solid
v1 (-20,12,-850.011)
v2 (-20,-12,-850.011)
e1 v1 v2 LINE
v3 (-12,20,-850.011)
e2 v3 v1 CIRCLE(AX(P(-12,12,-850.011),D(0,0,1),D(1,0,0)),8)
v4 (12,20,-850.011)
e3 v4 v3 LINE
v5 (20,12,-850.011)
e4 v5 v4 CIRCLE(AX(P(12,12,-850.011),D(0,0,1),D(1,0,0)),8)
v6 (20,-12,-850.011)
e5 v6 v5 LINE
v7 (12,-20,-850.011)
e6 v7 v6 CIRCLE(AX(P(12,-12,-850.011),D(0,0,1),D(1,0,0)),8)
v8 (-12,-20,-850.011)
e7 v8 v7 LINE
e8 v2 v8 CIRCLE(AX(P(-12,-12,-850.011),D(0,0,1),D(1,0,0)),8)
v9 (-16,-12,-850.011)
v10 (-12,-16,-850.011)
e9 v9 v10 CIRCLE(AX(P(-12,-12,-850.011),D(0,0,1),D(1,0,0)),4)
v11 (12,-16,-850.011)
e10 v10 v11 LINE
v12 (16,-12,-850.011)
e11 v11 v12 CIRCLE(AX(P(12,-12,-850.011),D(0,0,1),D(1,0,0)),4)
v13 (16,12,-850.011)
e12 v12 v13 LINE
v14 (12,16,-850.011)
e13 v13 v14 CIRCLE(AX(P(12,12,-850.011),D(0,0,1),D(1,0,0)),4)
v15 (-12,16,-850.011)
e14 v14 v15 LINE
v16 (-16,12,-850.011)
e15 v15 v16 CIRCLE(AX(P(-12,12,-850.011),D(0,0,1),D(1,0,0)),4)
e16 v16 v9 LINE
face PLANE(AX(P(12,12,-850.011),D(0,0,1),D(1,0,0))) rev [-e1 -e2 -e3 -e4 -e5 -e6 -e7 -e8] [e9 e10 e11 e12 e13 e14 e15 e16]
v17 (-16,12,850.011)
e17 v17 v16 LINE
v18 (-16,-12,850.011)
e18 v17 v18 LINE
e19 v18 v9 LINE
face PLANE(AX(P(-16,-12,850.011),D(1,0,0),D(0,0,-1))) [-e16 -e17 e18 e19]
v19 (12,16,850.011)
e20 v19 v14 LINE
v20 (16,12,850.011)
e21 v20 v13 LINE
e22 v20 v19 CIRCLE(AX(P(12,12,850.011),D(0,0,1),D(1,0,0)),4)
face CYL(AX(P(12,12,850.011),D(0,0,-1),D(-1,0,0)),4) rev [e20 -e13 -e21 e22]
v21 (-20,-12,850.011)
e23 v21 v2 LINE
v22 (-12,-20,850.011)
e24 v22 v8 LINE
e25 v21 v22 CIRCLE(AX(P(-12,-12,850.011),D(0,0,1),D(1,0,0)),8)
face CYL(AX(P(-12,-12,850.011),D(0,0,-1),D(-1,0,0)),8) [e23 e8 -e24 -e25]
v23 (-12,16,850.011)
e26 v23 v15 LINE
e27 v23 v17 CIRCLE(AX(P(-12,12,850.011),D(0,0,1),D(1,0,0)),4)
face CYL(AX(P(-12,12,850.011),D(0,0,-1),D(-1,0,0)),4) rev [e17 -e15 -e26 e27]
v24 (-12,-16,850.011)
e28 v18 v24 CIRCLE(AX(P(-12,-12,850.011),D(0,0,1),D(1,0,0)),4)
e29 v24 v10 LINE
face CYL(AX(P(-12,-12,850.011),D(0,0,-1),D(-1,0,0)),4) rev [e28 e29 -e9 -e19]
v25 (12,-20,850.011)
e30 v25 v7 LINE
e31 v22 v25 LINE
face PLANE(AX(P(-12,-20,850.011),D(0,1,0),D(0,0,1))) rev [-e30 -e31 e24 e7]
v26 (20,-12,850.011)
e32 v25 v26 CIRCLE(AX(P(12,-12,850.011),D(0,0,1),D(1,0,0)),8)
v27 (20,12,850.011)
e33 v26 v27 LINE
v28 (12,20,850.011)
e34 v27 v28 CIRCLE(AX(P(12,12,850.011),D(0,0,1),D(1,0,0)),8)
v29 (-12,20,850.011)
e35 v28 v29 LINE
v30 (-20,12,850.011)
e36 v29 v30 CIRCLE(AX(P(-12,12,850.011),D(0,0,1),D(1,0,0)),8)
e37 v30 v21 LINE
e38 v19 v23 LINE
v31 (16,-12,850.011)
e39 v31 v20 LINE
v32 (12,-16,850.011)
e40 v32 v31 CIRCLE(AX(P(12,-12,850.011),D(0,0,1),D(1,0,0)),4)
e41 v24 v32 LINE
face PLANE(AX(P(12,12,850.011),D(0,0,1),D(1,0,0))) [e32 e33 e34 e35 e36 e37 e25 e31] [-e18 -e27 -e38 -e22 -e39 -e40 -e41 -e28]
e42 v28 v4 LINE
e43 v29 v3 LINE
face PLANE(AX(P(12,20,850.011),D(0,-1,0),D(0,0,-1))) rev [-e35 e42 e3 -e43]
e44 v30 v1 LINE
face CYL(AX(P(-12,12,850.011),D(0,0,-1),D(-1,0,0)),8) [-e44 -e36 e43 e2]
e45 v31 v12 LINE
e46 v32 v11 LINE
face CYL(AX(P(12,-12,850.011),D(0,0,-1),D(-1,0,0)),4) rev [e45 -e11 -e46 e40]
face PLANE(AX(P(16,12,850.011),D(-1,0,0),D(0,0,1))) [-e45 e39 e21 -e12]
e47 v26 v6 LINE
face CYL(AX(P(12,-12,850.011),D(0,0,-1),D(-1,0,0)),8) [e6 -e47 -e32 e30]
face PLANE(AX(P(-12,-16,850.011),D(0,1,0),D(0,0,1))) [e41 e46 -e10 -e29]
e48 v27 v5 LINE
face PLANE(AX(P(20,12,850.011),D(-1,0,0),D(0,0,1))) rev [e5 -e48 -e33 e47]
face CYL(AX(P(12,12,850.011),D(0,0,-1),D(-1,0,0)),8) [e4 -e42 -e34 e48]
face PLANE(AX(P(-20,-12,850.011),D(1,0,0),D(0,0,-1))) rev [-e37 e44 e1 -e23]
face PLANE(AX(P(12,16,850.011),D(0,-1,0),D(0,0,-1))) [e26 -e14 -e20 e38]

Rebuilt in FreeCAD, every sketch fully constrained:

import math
import FreeCAD as App
import Part
import Sketcher

V = App.Vector
Q = App.Units.Quantity

doc = App.newDocument("Part")
body = doc.addObject("PartDesign::Body", "Body")

# Sketch on XY plane
sketch1 = body.newObject("Sketcher::SketchObject", "Sketch")
sketch1.AttachmentSupport = (doc.getObject("XY_Plane"), [""])
sketch1.MapMode = "FlatFace"
sketch1.AttachmentOffset = App.Placement(V(0, 0, -850.011), App.Rotation())
sketch1.addGeometry(Part.LineSegment(V(-12, -20, 0), V(12, -20, 0)), False)
sketch1.addGeometry(Part.ArcOfCircle(Part.Circle(V(12, -12, 0), V(0, 0, 1), 8), math.radians(-90), math.radians(0)), False)
sketch1.addGeometry(Part.LineSegment(V(20, -12, 0), V(20, 12, 0)), False)
sketch1.addGeometry(Part.ArcOfCircle(Part.Circle(V(12, 12, 0), V(0, 0, 1), 8), math.radians(0), math.radians(90)), False)
sketch1.addGeometry(Part.LineSegment(V(12, 20, 0), V(-12, 20, 0)), False)
sketch1.addGeometry(Part.ArcOfCircle(Part.Circle(V(-12, 12, 0), V(0, 0, 1), 8), math.radians(90), math.radians(180)), False)
sketch1.addGeometry(Part.LineSegment(V(-20, 12, 0), V(-20, -12, 0)), False)
sketch1.addGeometry(Part.ArcOfCircle(Part.Circle(V(-12, -12, 0), V(0, 0, 1), 8), math.radians(-180), math.radians(-90)), False)
sketch1.addGeometry(Part.LineSegment(V(12, -16, 0), V(-12, -16, 0)), False)
sketch1.addGeometry(Part.ArcOfCircle(Part.Circle(V(-12, -12, 0), V(0, 0, 1), 4), math.radians(180), math.radians(270)), False)
sketch1.addGeometry(Part.LineSegment(V(-16, -12, 0), V(-16, 12, 0)), False)
sketch1.addGeometry(Part.ArcOfCircle(Part.Circle(V(-12, 12, 0), V(0, 0, 1), 4), math.radians(90), math.radians(180)), False)
sketch1.addGeometry(Part.LineSegment(V(-12, 16, 0), V(12, 16, 0)), False)
sketch1.addGeometry(Part.ArcOfCircle(Part.Circle(V(12, 12, 0), V(0, 0, 1), 4), math.radians(0), math.radians(90)), False)
sketch1.addGeometry(Part.LineSegment(V(16, 12, 0), V(16, -12, 0)), False)
sketch1.addGeometry(Part.ArcOfCircle(Part.Circle(V(12, -12, 0), V(0, 0, 1), 4), math.radians(-90), math.radians(0)), False)
sketch1.addConstraint(Sketcher.Constraint("Tangent", 0, 2, 1, 1))
sketch1.addConstraint(Sketcher.Constraint("Tangent", 1, 2, 2, 1))
sketch1.addConstraint(Sketcher.Constraint("Tangent", 2, 2, 3, 1))
sketch1.addConstraint(Sketcher.Constraint("Tangent", 3, 2, 4, 1))
sketch1.addConstraint(Sketcher.Constraint("Tangent", 4, 2, 5, 1))
sketch1.addConstraint(Sketcher.Constraint("Tangent", 5, 2, 6, 1))
sketch1.addConstraint(Sketcher.Constraint("Tangent", 6, 2, 7, 1))
sketch1.addConstraint(Sketcher.Constraint("Tangent", 7, 2, 0, 1))
sketch1.addConstraint(Sketcher.Constraint("Tangent", 8, 2, 9, 2))
sketch1.addConstraint(Sketcher.Constraint("Tangent", 9, 1, 10, 1))
sketch1.addConstraint(Sketcher.Constraint("Tangent", 10, 2, 11, 2))
sketch1.addConstraint(Sketcher.Constraint("Tangent", 11, 1, 12, 1))
sketch1.addConstraint(Sketcher.Constraint("Tangent", 12, 2, 13, 2))
sketch1.addConstraint(Sketcher.Constraint("Tangent", 13, 1, 14, 1))
sketch1.addConstraint(Sketcher.Constraint("Tangent", 14, 2, 15, 2))
sketch1.addConstraint(Sketcher.Constraint("Tangent", 15, 1, 8, 1))
sketch1.addConstraint(Sketcher.Constraint("Horizontal", 0))
sketch1.addConstraint(Sketcher.Constraint("Vertical", 2))
sketch1.addConstraint(Sketcher.Constraint("Horizontal", 4))
sketch1.addConstraint(Sketcher.Constraint("Vertical", 6))
sketch1.addConstraint(Sketcher.Constraint("Horizontal", 8))
sketch1.addConstraint(Sketcher.Constraint("Vertical", 10))
sketch1.addConstraint(Sketcher.Constraint("Horizontal", 12))
sketch1.addConstraint(Sketcher.Constraint("Vertical", 14))
sketch1.addConstraint(Sketcher.Constraint("Coincident", 9, 3, 7, 3))
sketch1.addConstraint(Sketcher.Constraint("Coincident", 11, 3, 5, 3))
sketch1.addConstraint(Sketcher.Constraint("Coincident", 13, 3, 3, 3))
sketch1.addConstraint(Sketcher.Constraint("Equal", 1, 3))
sketch1.addConstraint(Sketcher.Constraint("Equal", 3, 5))
sketch1.addConstraint(Sketcher.Constraint("Equal", 5, 7))
sketch1.addConstraint(Sketcher.Constraint("Equal", 13, 15))
sketch1.addConstraint(Sketcher.Constraint("Symmetric", 1, 3, 5, 3, -1, 1))
sketch1.addConstraint(Sketcher.Constraint("Equal", 12, 2))
sketch1.addConstraint(Sketcher.Constraint("Radius", 1, Q("8 mm")))
sketch1.addConstraint(Sketcher.Constraint("Radius", 9, Q("4 mm")))
sketch1.addConstraint(Sketcher.Constraint("DistanceX", 0, 1, 0, 2, Q("24 mm")))
pad1 = body.newObject("PartDesign::Pad", "Pad")
pad1.Profile = sketch1
pad1.Length = 1700.022

doc.recompute()
